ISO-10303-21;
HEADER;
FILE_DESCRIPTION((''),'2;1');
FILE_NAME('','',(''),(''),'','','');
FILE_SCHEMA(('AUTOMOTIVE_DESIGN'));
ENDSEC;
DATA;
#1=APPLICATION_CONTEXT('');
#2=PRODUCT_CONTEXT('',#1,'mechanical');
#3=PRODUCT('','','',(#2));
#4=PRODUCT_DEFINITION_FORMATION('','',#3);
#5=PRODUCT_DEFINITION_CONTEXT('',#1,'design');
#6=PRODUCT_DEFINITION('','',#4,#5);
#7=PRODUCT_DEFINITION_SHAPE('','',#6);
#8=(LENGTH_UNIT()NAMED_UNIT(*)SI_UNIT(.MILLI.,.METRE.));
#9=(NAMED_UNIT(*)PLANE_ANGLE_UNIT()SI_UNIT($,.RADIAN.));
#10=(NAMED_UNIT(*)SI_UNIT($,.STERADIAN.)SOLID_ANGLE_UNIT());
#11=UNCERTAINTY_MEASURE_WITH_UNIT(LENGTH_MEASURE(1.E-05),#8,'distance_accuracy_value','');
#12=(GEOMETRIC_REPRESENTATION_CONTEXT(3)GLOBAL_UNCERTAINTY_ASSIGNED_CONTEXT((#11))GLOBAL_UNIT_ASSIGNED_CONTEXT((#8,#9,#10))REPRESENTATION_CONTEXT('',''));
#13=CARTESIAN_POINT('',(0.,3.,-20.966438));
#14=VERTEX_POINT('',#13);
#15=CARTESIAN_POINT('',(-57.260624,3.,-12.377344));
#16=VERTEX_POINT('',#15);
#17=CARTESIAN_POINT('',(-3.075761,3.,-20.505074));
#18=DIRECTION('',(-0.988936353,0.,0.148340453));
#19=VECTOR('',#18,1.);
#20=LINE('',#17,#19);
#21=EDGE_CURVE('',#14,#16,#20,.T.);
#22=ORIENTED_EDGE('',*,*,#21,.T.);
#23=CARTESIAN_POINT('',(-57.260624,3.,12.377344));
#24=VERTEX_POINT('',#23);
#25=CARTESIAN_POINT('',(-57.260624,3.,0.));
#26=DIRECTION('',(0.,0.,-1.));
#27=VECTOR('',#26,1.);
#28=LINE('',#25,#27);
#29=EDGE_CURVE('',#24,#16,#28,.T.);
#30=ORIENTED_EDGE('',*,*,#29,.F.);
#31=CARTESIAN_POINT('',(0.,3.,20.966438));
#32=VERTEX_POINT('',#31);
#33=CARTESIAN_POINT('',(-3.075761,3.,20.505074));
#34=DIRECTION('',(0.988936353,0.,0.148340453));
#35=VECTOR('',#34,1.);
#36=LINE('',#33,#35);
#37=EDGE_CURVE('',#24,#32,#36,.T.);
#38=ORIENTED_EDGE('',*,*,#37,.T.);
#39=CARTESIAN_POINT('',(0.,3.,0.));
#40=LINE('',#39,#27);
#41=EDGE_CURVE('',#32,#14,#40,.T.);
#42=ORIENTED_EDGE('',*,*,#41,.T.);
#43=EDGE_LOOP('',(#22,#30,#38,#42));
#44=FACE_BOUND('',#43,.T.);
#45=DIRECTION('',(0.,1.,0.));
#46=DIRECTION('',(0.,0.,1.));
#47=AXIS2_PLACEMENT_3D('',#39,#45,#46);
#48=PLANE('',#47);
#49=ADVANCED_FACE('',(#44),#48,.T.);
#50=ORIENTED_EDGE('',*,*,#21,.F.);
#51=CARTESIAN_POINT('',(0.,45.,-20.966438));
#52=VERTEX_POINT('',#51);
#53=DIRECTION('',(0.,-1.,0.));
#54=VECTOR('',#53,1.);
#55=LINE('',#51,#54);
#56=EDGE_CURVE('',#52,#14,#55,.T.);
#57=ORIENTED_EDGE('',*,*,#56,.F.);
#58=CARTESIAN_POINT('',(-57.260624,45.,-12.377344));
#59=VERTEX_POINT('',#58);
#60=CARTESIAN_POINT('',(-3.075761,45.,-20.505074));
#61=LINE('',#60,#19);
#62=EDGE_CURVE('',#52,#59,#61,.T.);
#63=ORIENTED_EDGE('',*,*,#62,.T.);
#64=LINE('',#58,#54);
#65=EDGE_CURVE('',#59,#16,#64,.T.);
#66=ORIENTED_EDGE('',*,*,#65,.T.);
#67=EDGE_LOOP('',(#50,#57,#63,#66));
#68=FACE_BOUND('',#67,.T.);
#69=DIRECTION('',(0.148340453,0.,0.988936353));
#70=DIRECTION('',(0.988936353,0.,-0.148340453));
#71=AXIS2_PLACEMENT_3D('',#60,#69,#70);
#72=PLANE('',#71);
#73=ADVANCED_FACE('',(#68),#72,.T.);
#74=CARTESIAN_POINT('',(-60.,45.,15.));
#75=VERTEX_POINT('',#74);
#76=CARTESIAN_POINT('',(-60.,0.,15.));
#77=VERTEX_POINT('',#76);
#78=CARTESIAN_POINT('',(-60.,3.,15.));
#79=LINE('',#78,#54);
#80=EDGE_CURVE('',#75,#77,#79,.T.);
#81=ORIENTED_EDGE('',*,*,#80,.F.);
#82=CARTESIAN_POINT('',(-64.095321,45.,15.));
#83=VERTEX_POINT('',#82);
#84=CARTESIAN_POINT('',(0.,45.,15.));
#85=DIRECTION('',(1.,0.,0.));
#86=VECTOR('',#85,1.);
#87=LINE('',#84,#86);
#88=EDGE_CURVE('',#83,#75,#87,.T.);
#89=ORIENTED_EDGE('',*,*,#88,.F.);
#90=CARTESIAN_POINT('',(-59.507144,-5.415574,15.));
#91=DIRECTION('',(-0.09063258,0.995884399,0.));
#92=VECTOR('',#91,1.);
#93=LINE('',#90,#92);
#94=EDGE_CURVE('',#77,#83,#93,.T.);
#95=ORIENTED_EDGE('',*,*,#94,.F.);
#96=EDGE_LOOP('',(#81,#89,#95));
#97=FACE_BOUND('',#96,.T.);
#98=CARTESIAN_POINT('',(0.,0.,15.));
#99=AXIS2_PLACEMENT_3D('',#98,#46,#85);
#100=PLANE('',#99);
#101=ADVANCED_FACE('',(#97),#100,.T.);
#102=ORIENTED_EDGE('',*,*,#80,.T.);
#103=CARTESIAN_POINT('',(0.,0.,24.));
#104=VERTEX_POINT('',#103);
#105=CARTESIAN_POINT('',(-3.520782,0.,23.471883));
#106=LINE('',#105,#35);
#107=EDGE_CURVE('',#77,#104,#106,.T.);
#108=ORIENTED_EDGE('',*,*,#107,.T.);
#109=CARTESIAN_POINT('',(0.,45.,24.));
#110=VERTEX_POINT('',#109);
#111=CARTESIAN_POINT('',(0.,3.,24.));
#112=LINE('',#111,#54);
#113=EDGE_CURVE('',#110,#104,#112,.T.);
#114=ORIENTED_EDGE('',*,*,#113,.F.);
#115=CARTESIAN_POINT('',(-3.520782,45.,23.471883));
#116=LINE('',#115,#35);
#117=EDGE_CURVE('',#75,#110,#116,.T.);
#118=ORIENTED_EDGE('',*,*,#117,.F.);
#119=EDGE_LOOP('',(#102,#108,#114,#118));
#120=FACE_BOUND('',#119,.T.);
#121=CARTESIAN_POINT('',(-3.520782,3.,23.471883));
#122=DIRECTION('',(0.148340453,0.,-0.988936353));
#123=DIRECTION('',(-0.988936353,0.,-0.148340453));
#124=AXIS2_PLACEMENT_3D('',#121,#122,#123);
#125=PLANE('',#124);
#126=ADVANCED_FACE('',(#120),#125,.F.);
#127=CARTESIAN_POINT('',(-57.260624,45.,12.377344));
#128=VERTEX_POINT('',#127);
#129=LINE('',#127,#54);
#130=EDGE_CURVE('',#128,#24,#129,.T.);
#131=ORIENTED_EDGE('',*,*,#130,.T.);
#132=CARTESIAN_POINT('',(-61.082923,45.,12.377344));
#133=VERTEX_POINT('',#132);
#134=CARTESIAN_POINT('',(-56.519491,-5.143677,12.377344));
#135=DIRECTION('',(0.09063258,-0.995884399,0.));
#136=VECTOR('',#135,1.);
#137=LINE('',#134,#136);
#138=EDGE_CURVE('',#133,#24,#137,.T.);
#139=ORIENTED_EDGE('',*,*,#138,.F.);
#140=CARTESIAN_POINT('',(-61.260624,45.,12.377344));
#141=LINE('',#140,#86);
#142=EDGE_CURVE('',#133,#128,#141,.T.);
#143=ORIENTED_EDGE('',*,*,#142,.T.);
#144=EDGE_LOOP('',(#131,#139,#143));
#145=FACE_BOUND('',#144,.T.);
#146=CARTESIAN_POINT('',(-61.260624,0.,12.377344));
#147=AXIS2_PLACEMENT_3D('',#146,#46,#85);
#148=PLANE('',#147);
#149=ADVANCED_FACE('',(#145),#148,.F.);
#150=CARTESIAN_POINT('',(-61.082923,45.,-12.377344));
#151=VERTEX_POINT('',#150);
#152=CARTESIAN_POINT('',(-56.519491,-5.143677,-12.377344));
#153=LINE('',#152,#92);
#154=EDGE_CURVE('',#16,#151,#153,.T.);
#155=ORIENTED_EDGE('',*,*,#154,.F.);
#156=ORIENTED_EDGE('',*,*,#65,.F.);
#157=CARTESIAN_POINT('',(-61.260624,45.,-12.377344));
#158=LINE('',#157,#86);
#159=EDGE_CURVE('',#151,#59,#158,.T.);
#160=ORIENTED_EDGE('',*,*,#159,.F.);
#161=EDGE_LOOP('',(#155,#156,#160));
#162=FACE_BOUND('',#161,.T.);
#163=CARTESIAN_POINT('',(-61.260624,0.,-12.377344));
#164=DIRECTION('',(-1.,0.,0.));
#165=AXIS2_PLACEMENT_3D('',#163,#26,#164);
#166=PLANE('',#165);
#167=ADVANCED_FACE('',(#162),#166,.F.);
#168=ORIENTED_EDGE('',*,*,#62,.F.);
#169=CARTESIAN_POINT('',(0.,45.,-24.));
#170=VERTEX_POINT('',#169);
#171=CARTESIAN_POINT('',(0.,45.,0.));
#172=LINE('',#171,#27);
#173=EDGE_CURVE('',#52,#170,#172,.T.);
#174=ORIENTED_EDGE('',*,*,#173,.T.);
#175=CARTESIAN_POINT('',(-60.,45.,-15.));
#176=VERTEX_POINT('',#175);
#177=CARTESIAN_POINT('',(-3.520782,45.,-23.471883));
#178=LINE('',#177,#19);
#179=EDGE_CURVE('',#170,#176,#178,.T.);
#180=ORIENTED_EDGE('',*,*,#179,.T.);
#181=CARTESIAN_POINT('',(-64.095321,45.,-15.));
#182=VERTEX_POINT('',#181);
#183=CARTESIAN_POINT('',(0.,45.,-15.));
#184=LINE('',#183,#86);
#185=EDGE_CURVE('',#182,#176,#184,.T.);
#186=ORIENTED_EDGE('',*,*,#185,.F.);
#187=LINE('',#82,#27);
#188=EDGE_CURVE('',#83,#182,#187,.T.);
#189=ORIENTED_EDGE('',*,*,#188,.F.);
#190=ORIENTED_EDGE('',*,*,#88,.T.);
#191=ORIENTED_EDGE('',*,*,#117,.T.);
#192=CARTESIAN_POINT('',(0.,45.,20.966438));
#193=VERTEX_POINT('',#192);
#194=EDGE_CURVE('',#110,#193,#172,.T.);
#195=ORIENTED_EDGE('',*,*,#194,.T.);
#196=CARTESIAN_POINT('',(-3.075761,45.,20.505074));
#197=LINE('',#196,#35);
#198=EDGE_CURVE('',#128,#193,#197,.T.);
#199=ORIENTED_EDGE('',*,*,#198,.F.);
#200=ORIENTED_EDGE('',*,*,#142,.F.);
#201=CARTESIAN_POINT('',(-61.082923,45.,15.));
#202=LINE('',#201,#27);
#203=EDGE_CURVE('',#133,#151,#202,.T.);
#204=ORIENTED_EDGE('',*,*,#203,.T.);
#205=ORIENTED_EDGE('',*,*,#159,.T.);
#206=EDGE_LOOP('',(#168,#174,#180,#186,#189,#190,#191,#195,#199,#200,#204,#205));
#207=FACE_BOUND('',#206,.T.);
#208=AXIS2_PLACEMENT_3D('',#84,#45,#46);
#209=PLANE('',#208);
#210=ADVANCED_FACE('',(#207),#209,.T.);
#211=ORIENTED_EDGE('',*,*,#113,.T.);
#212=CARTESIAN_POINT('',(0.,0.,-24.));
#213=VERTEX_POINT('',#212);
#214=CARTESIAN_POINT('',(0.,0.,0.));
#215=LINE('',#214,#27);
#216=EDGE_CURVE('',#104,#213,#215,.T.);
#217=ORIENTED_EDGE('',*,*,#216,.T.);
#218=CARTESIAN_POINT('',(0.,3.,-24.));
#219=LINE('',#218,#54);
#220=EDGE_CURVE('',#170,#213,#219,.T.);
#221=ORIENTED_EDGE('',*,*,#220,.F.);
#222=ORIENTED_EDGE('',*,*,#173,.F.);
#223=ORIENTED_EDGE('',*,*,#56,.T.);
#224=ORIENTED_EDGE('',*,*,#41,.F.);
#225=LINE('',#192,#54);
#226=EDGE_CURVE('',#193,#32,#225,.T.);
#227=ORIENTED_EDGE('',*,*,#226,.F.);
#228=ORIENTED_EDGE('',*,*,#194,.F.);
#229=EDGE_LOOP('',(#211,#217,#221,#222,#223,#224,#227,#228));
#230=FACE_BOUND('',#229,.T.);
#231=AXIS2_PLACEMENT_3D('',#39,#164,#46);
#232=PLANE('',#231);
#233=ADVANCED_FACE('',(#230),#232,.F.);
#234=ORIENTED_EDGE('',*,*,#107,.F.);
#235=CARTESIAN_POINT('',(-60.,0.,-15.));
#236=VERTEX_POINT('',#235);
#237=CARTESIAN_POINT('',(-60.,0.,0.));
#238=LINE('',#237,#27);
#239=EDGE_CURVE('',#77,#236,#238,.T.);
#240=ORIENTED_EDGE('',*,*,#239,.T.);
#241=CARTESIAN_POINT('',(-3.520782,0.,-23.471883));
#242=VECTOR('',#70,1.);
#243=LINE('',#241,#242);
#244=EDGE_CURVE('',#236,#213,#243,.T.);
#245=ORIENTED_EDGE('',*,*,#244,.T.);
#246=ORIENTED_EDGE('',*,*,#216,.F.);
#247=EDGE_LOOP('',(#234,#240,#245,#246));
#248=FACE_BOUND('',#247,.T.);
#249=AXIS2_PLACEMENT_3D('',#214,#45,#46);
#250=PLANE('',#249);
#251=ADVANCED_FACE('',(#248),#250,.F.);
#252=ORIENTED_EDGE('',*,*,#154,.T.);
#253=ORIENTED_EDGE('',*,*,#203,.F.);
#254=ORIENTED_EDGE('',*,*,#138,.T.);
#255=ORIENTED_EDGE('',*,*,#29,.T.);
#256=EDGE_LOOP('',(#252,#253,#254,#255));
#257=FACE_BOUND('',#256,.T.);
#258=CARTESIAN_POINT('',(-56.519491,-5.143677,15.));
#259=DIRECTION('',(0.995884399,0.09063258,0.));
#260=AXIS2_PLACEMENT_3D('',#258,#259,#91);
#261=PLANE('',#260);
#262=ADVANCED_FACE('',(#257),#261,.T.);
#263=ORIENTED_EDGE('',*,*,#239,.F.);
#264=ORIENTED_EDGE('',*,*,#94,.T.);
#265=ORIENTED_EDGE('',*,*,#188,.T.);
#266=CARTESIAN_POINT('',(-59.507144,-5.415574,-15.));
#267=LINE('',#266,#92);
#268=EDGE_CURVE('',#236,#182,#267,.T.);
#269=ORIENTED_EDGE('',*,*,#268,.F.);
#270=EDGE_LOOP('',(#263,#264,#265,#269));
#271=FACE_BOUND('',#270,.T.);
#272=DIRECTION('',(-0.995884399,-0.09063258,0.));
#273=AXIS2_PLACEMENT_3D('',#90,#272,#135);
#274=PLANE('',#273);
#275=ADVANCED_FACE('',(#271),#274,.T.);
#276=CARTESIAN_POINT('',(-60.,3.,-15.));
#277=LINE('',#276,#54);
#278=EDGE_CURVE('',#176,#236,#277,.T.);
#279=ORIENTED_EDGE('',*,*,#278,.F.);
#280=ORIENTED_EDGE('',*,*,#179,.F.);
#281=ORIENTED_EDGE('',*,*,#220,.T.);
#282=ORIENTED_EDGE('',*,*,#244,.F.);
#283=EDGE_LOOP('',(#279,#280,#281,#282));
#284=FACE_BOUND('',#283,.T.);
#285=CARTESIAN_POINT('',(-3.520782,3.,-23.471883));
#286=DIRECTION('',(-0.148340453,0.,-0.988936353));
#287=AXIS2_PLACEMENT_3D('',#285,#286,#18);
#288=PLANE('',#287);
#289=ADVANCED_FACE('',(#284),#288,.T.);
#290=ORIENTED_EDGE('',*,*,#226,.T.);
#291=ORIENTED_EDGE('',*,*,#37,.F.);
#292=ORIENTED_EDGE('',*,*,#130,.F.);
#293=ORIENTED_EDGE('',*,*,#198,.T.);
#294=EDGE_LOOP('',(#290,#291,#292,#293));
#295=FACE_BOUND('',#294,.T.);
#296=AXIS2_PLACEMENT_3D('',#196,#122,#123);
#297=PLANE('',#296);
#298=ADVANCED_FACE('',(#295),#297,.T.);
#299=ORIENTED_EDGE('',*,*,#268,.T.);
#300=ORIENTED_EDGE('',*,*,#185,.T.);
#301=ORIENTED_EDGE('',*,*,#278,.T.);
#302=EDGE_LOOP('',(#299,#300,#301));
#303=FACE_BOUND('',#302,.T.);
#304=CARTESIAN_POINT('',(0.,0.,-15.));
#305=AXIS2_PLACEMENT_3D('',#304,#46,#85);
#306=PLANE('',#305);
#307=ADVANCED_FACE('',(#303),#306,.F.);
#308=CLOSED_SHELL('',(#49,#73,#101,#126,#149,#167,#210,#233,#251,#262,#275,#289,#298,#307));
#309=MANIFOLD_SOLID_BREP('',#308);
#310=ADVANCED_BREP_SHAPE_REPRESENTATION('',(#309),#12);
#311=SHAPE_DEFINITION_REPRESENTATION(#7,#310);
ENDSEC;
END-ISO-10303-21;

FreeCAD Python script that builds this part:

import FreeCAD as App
import Part
import Sketcher
Q = App.Units.Quantity


def add_polygon(sketch, points):
    """Adds a closed chain of lines whose ends are joined by coincident constraints."""
    first, n = sketch.GeometryCount, len(points)
    for a, b in zip(points, points[1:] + points[:1]):
        sketch.addGeometry(Part.LineSegment(App.Vector(*a, 0), App.Vector(*b, 0)), False)
    for i in range(n):
        sketch.addConstraint(Sketcher.Constraint("Coincident", first + i, 2, first + (i + 1) % n, 1))

doc = App.newDocument("Part")
body = doc.addObject("PartDesign::Body", "Body")

sketch1 = body.newObject("Sketcher::SketchObject", "Sketch")
sketch1.AttachmentSupport = (doc.getObject("XZ_Plane"), [""])
sketch1.MapMode = "FlatFace"
add_polygon(sketch1, [(0, -24), (-60, -15), (-60, 15), (0, 24)])
sketch1.addConstraint([
    Sketcher.Constraint("Vertical", 1),
    Sketcher.Constraint("Vertical", 3),
    Sketcher.Constraint("Symmetric", 2, 2, 3, 2, -1, 1),
    Sketcher.Constraint("Equal", 0, 2),
    Sketcher.Constraint("DistanceY", 1, 1, 1, 2, Q("30 mm")),
    Sketcher.Constraint("DistanceY", 3, 2, 3, 1, Q("48 mm")),
    Sketcher.Constraint("DistanceX", 0, 2, -1, 1, Q("60 mm")),
])
pad1 = body.newObject("PartDesign::Pad", "Pad")
pad1.Profile = sketch1
pad1.Length = 3
pad1.Reversed = True

sketch2 = body.newObject("Sketcher::SketchObject", "Sketch001")
sketch2.AttachmentSupport = (doc.getObject("XY_Plane"), [""])
sketch2.MapMode = "FlatFace"
add_polygon(sketch2, [(-61.1, 45), (-64.1, 45), (-60, 0), (-57, 0)])
sketch2.addConstraint([
    Sketcher.Constraint("Horizontal", 0),
    Sketcher.Constraint("Horizontal", 2),
    Sketcher.Constraint("PointOnObject", 1, 2, -1),
    Sketcher.Constraint("Parallel", 1, 3),
    Sketcher.Constraint("DistanceY", -1, 1, 0, 2, Q("45 mm")),
    Sketcher.Constraint("DistanceX", 1, 2, -1, 1, Q("60 mm")),
    Sketcher.Constraint("Angle", 1, Q("-84.8 deg")),
    Sketcher.Constraint("DistanceX", 0, 2, 0, 1, Q("3.012398 mm")),
])
pad2 = body.newObject("PartDesign::Pad", "Pad001")
pad2.Profile = sketch2
pad2.Length = 30
pad2.Midplane = True

sketch3 = body.newObject("Sketcher::SketchObject", "Sketch002")
sketch3.AttachmentSupport = (doc.getObject("XZ_Plane"), [""])
sketch3.MapMode = "FlatFace"
sketch3.AttachmentOffset = App.Placement(App.Vector(0, 0, -3), App.Rotation())
add_polygon(sketch3, [(-57.3, -12.4), (0, -21), (0, -24), (-60, -15), (-57.3, -15)])
add_polygon(sketch3, [(0, 24), (0, 21), (-57.3, 12.4), (-57.3, 15), (-60, 15)])
sketch3.addConstraint([
    Sketcher.Constraint("Vertical", 1),
    Sketcher.Constraint("Horizontal", 3),
    Sketcher.Constraint("Vertical", 4),
    Sketcher.Constraint("Vertical", 5),
    Sketcher.Constraint("Vertical", 7),
    Sketcher.Constraint("Horizontal", 8),
    Sketcher.Constraint("Symmetric", 0, 2, 5, 2, -1, 1),
    Sketcher.Constraint("Symmetric", 4, 2, 6, 2, -1),
    Sketcher.Constraint("Symmetric", 2, 2, 8, 2, -1),
    Sketcher.Constraint("Symmetric", 1, 2, 9, 2, -1),
    Sketcher.Constraint("Parallel", 0, 2),
    Sketcher.Constraint("DistanceY", 1, 2, -1, 1, Q("24 mm")),
    Sketcher.Constraint("DistanceX", 2, 2, -1, 1, Q("60 mm")),
    Sketcher.Constraint("DistanceY", 2, 2, -1, 1, Q("15 mm")),
    Sketcher.Constraint("DistanceX", 3, 1, 3, 2, Q("2.739376 mm")),
    Sketcher.Constraint("DistanceY", 1, 2, 1, 1, Q("3.033562 mm")),
])
pad3 = body.newObject("PartDesign::Pad", "Pad002")
pad3.Profile = sketch3
pad3.Length = 42
pad3.Reversed = True

sketch4 = body.newObject("Sketcher::SketchObject", "Sketch003")
sketch4.AttachmentSupport = (doc.getObject("YZ_Plane"), [""])
sketch4.MapMode = "FlatFace"
sketch4.AttachmentOffset = App.Placement(App.Vector(0, 0, -57.260624), App.Rotation())
add_polygon(sketch4, [(45, -15), (3, -15), (3, -12.4), (45, -12.4)])
add_polygon(sketch4, [(45, 12.4), (0, 12.4), (0, 15), (45, 15)])
sketch4.addConstraint([
    Sketcher.Constraint("Horizontal", 0),
    Sketcher.Constraint("Vertical", 1),
    Sketcher.Constraint("Horizontal", 2),
    Sketcher.Constraint("Vertical", 3),
    Sketcher.Constraint("Horizontal", 4),
    Sketcher.Constraint("Vertical", 5),
    Sketcher.Constraint("Horizontal", 6),
    Sketcher.Constraint("Vertical", 7),
    Sketcher.Constraint("Symmetric", 3, 2, 6, 2, -1),
    Sketcher.Constraint("PointOnObject", 4, 2, -2),
    Sketcher.Constraint("Equal", 3, 5),
    Sketcher.Constraint("DistanceX", 0, 2, 0, 1, Q("42 mm")),
    Sketcher.Constraint("DistanceX", 4, 2, 4, 1, Q("45 mm")),
    Sketcher.Constraint("DistanceY", 0, 2, -1, 1, Q("15 mm")),
    Sketcher.Constraint("DistanceY", 1, 1, 1, 2, Q("2.622656 mm")),
])
pad4 = body.newObject("PartDesign::Pad", "Pad003")
pad4.Profile = sketch4
pad4.Length = 4
pad4.Reversed = True

sketch5 = body.newObject("Sketcher::SketchObject", "Sketch004")
sketch5.AttachmentSupport = (doc.getObject("XY_Plane"), [""])
sketch5.MapMode = "FlatFace"
sketch5.AttachmentOffset = App.Placement(App.Vector(0, 0, 15), App.Rotation())
add_polygon(sketch5, [(-60, 0), (-61.3, 13.9), (-61.3, 0)])
sketch5.addConstraint([
    Sketcher.Constraint("Vertical", 1),
    Sketcher.Constraint("Horizontal", 2),
    Sketcher.Constraint("PointOnObject", 1, 2, -1),
    Sketcher.Constraint("DistanceX", 2, 2, -1, 1, Q("60 mm")),
    Sketcher.Constraint("Angle", 0, Q("95.2 deg")),
    Sketcher.Constraint("DistanceY", 1, 2, 1, 1, Q("13.851921 mm")),
])
pocket1 = body.newObject("PartDesign::Pocket", "Pocket")
pocket1.Profile = sketch5
pocket1.Type = "ThroughAll"

doc.recompute()
